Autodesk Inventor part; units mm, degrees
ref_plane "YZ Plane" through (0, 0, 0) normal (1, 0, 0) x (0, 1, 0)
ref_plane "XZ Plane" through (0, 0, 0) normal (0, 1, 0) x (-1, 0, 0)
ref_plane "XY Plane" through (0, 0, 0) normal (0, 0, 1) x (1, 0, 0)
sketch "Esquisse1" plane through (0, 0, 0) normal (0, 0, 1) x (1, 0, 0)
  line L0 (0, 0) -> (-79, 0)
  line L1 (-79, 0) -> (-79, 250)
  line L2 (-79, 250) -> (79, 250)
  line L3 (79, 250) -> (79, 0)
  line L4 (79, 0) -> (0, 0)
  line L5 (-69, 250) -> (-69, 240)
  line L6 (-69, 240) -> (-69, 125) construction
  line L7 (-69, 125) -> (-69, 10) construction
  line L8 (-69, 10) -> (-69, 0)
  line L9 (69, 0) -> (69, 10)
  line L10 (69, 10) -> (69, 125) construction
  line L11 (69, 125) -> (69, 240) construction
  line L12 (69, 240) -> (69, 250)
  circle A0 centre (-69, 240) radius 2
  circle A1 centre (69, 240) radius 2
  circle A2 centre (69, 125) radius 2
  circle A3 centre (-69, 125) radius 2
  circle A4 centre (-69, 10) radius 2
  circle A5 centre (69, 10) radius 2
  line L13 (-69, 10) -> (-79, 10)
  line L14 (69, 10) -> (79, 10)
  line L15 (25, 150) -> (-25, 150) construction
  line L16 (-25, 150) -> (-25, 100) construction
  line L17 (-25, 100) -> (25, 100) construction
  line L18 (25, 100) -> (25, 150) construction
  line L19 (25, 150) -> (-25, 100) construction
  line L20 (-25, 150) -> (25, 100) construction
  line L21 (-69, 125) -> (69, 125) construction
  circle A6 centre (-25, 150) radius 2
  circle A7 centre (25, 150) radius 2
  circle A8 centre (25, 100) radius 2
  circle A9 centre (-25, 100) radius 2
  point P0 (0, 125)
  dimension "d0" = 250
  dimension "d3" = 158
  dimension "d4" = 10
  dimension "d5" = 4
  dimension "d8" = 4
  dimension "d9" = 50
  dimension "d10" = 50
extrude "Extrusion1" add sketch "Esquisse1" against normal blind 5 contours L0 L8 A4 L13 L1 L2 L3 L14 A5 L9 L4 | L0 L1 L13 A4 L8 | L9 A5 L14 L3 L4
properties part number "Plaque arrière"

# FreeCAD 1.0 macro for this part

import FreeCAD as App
import Part
import Sketcher


def add_polygon(sketch, points):
    """Adds a closed chain of lines whose ends are joined by coincident constraints."""
    first, n = sketch.GeometryCount, len(points)
    for a, b in zip(points, points[1:] + points[:1]):
        sketch.addGeometry(Part.LineSegment(App.Vector(*a, 0), App.Vector(*b, 0)), False)
    for i in range(n):
        sketch.addConstraint(Sketcher.Constraint("Coincident", first + i, 2, first + (i + 1) % n, 1))

doc = App.newDocument("Part")
params = doc.addObject("Spreadsheet::Sheet", "Params")
for row, (alias, value) in enumerate([
    ("sketch1_diameter", "4 mm"),
    ("sketch1_width", "10 mm"),
    ("sketch1_width2", "158 mm"),
    ("sketch1_height", "250 mm"),
    ("pad1_length", "5 mm"),
], start=1):
    params.set(f"A{row}", alias)
    params.set(f"B{row}", "=" + value)
    params.setAlias(f"B{row}", alias)

body = doc.addObject("PartDesign::Body", "Body")

sketch1 = body.newObject("Sketcher::SketchObject", "Sketch")
sketch1.AttachmentSupport = (doc.getObject("XY_Plane"), [""])
sketch1.MapMode = "FlatFace"
add_polygon(sketch1, [(79, 0), (79, 250), (69, 250), (-69, 250), (-79, 250), (-79, 0)])
sketch1.addGeometry(Part.Circle(App.Vector(-69, 10, 0), App.Vector(0, 0, 1), 2), False)
sketch1.addGeometry(Part.Circle(App.Vector(69, 10, 0), App.Vector(0, 0, 1), 2), False)
sketch1.addGeometry(Part.Circle(App.Vector(-25, 100, 0), App.Vector(0, 0, 1), 2), False)
sketch1.addGeometry(Part.Circle(App.Vector(25, 100, 0), App.Vector(0, 0, 1), 2), False)
sketch1.addGeometry(Part.Circle(App.Vector(-69, 125, 0), App.Vector(0, 0, 1), 2), False)
sketch1.addGeometry(Part.Circle(App.Vector(-25, 150, 0), App.Vector(0, 0, 1), 2), False)
sketch1.addGeometry(Part.Circle(App.Vector(-69, 240, 0), App.Vector(0, 0, 1), 2), False)
sketch1.addGeometry(Part.Circle(App.Vector(25, 150, 0), App.Vector(0, 0, 1), 2), False)
sketch1.addGeometry(Part.Circle(App.Vector(69, 125, 0), App.Vector(0, 0, 1), 2), False)
sketch1.addGeometry(Part.Circle(App.Vector(69, 240, 0), App.Vector(0, 0, 1), 2), False)
sketch1.addConstraint([
    Sketcher.Constraint("Vertical", 0),
    Sketcher.Constraint("Horizontal", 1),
    Sketcher.Constraint("Horizontal", 2),
    Sketcher.Constraint("Horizontal", 3),
    Sketcher.Constraint("Vertical", 4),
    Sketcher.Constraint("Horizontal", 5),
    Sketcher.Constraint("Equal", 6, 7),
    Sketcher.Constraint("Equal", 7, 8),
    Sketcher.Constraint("Equal", 8, 9),
    Sketcher.Constraint("Equal", 9, 10),
    Sketcher.Constraint("Equal", 10, 11),
    Sketcher.Constraint("Equal", 11, 12),
    Sketcher.Constraint("Equal", 12, 13),
    Sketcher.Constraint("Equal", 13, 14),
    Sketcher.Constraint("Equal", 14, 15),
    Sketcher.Constraint("Symmetric", 4, 2, 5, 2, -1, 1),
    Sketcher.Constraint("Symmetric", 6, 3, 7, 3, -2),
    Sketcher.Constraint("Symmetric", 8, 3, 9, 3, -2),
    Sketcher.Constraint("Symmetric", 11, 3, 13, 3, -2),
    Sketcher.Constraint("Symmetric", 10, 3, 14, 3, -2),
    Sketcher.Constraint("Symmetric", 12, 3, 15, 3, -2),
    Sketcher.Constraint("Vertical", 6, 3, 10, 3),
    Sketcher.Constraint("Vertical", 8, 3, 11, 3),
    Sketcher.Constraint("Vertical", 10, 3, 12, 3),
    Sketcher.Constraint("Vertical", 15, 3, 1, 2),
    Sketcher.Constraint("Vertical", 12, 3, 2, 2),
    Sketcher.Constraint("Diameter", 6, 4.0),
    Sketcher.Constraint("DistanceX", 1, 2, 1, 1, 10.0),
    Sketcher.Constraint("DistanceX", 5, 1, 5, 2, 158.0),
    Sketcher.Constraint("DistanceY", 0, 1, 0, 2, 250.0),
    Sketcher.Constraint("DistanceY", -1, 1, 6, 3, 10.0),
    Sketcher.Constraint("DistanceX", 8, 3, 9, 3, 50.0),
    Sketcher.Constraint("DistanceY", 8, 3, 11, 3, 50.0),
    Sketcher.Constraint("DistanceY", 15, 3, 0, 2, 10.0),
    Sketcher.Constraint("DistanceY", -1, 1, 8, 3, 100.0),
    Sketcher.Constraint("DistanceY", -1, 1, 10, 3, 125.0),
])
sketch1.setExpression("Constraints[32]", "Params.sketch1_diameter")
sketch1.setExpression("Constraints[33]", "Params.sketch1_width")
sketch1.setExpression("Constraints[34]", "Params.sketch1_width2")
sketch1.setExpression("Constraints[35]", "Params.sketch1_height")
pad1 = body.newObject("PartDesign::Pad", "Pad")
pad1.Profile = sketch1
pad1.setExpression("Length", "Params.pad1_length")
pad1.Reversed = True

doc.recompute()
